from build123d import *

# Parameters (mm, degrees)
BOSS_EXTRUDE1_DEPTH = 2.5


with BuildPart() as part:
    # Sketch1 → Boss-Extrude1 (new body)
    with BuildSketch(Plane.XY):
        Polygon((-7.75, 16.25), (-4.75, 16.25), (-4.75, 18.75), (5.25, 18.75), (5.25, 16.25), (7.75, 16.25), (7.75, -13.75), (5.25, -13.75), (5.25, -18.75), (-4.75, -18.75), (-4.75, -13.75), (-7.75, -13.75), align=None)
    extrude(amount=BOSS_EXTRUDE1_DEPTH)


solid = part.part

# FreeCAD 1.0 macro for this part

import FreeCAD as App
import Part
import Sketcher

doc = App.newDocument("Part")
params = doc.addObject("Spreadsheet::Sheet", "Params")
for row, (alias, value) in enumerate([
    ("sketch1_width", "3 mm"),
    ("sketch1_width2", "10 mm"),
    ("sketch1_height", "30 mm"),
    ("sketch1_height2", "5 mm"),
    ("sketch1_width3", "2.5 mm"),
    ("pad1_length", "2.5 mm"),
], start=1):
    params.set(f"A{row}", alias)
    params.set(f"B{row}", "=" + value)
    params.setAlias(f"B{row}", alias)

body = doc.addObject("PartDesign::Body", "Body")

sketch1 = doc.addObject("Sketcher::SketchObject", "Sketch")
body.addObject(sketch1)
sketch1.AttachmentSupport = (doc.XY_Plane, [""])
sketch1.MapMode = "FlatFace"
sketch1.addGeometry(Part.LineSegment(App.Vector(-4.8, 16.2, 0), App.Vector(-7.8, 16.2, 0)), False)
sketch1.addGeometry(Part.LineSegment(App.Vector(-7.8, 16.2, 0), App.Vector(-7.8, -13.8, 0)), False)
sketch1.addGeometry(Part.LineSegment(App.Vector(-7.8, -13.8, 0), App.Vector(-4.8, -13.8, 0)), False)
sketch1.addGeometry(Part.LineSegment(App.Vector(-4.8, -13.8, 0), App.Vector(-4.8, -18.8, 0)), False)
sketch1.addGeometry(Part.LineSegment(App.Vector(-4.8, -18.8, 0), App.Vector(5.2, -18.8, 0)), False)
sketch1.addGeometry(Part.LineSegment(App.Vector(5.2, -18.8, 0), App.Vector(5.2, -13.8, 0)), False)
sketch1.addGeometry(Part.LineSegment(App.Vector(5.2, -13.8, 0), App.Vector(7.8, -13.8, 0)), False)
sketch1.addGeometry(Part.LineSegment(App.Vector(7.8, -13.8, 0), App.Vector(7.8, 16.2, 0)), False)
sketch1.addGeometry(Part.LineSegment(App.Vector(7.8, 16.2, 0), App.Vector(5.2, 16.2, 0)), False)
sketch1.addGeometry(Part.LineSegment(App.Vector(5.2, 16.2, 0), App.Vector(5.2, 18.8, 0)), False)
sketch1.addGeometry(Part.LineSegment(App.Vector(5.2, 18.8, 0), App.Vector(-4.8, 18.8, 0)), False)
sketch1.addGeometry(Part.LineSegment(App.Vector(-4.8, 18.8, 0), App.Vector(-4.8, 16.2, 0)), False)
sketch1.addConstraint(Sketcher.Constraint("Coincident", 0, 2, 1, 1))
sketch1.addConstraint(Sketcher.Constraint("Coincident", 1, 2, 2, 1))
sketch1.addConstraint(Sketcher.Constraint("Coincident", 2, 2, 3, 1))
sketch1.addConstraint(Sketcher.Constraint("Coincident", 3, 2, 4, 1))
sketch1.addConstraint(Sketcher.Constraint("Coincident", 4, 2, 5, 1))
sketch1.addConstraint(Sketcher.Constraint("Coincident", 5, 2, 6, 1))
sketch1.addConstraint(Sketcher.Constraint("Coincident", 6, 2, 7, 1))
sketch1.addConstraint(Sketcher.Constraint("Coincident", 7, 2, 8, 1))
sketch1.addConstraint(Sketcher.Constraint("Coincident", 8, 2, 9, 1))
sketch1.addConstraint(Sketcher.Constraint("Coincident", 9, 2, 10, 1))
sketch1.addConstraint(Sketcher.Constraint("Coincident", 10, 2, 11, 1))
sketch1.addConstraint(Sketcher.Constraint("Coincident", 11, 2, 0, 1))
sketch1.addConstraint(Sketcher.Constraint("Horizontal", 0))
sketch1.addConstraint(Sketcher.Constraint("Vertical", 1))
sketch1.addConstraint(Sketcher.Constraint("Horizontal", 2))
sketch1.addConstraint(Sketcher.Constraint("Vertical", 3))
sketch1.addConstraint(Sketcher.Constraint("Horizontal", 4))
sketch1.addConstraint(Sketcher.Constraint("Vertical", 5))
sketch1.addConstraint(Sketcher.Constraint("Horizontal", 6))
sketch1.addConstraint(Sketcher.Constraint("Vertical", 7))
sketch1.addConstraint(Sketcher.Constraint("Horizontal", 8))
sketch1.addConstraint(Sketcher.Constraint("Vertical", 9))
sketch1.addConstraint(Sketcher.Constraint("Horizontal", 10))
sketch1.addConstraint(Sketcher.Constraint("Vertical", 11))
sketch1.addConstraint(Sketcher.Constraint("Symmetric", 1, 2, 6, 2, -2))
sketch1.addConstraint(Sketcher.Constraint("Symmetric", 4, 2, 9, 2, -1))
sketch1.addConstraint(Sketcher.Constraint("Horizontal", 0, 2, 7, 2))
sketch1.addConstraint(Sketcher.Constraint("Vertical", 3, 2, 10, 2))
sketch1.addConstraint(Sketcher.Constraint("Equal", 8, 9))
sketch1.addConstraint(Sketcher.Constraint("DistanceX", 0, 2, 0, 1, 3.0))
sketch1.addConstraint(Sketcher.Constraint("DistanceX", 4, 1, 4, 2, 10.0))
sketch1.addConstraint(Sketcher.Constraint("DistanceY", 1, 2, 1, 1, 30.0))
sketch1.addConstraint(Sketcher.Constraint("DistanceY", 3, 2, 3, 1, 5.0))
sketch1.addConstraint(Sketcher.Constraint("DistanceX", 6, 1, 6, 2, 2.5))
sketch1.setExpression("Constraints[29]", "Params.sketch1_width")
sketch1.setExpression("Constraints[30]", "Params.sketch1_width2")
sketch1.setExpression("Constraints[31]", "Params.sketch1_height")
sketch1.setExpression("Constraints[32]", "Params.sketch1_height2")
sketch1.setExpression("Constraints[33]", "Params.sketch1_width3")
pad1 = doc.addObject("PartDesign::Pad", "Pad")
body.addObject(pad1)
pad1.Profile = sketch1
pad1.setExpression("Length", "Params.pad1_length")

doc.recompute()
